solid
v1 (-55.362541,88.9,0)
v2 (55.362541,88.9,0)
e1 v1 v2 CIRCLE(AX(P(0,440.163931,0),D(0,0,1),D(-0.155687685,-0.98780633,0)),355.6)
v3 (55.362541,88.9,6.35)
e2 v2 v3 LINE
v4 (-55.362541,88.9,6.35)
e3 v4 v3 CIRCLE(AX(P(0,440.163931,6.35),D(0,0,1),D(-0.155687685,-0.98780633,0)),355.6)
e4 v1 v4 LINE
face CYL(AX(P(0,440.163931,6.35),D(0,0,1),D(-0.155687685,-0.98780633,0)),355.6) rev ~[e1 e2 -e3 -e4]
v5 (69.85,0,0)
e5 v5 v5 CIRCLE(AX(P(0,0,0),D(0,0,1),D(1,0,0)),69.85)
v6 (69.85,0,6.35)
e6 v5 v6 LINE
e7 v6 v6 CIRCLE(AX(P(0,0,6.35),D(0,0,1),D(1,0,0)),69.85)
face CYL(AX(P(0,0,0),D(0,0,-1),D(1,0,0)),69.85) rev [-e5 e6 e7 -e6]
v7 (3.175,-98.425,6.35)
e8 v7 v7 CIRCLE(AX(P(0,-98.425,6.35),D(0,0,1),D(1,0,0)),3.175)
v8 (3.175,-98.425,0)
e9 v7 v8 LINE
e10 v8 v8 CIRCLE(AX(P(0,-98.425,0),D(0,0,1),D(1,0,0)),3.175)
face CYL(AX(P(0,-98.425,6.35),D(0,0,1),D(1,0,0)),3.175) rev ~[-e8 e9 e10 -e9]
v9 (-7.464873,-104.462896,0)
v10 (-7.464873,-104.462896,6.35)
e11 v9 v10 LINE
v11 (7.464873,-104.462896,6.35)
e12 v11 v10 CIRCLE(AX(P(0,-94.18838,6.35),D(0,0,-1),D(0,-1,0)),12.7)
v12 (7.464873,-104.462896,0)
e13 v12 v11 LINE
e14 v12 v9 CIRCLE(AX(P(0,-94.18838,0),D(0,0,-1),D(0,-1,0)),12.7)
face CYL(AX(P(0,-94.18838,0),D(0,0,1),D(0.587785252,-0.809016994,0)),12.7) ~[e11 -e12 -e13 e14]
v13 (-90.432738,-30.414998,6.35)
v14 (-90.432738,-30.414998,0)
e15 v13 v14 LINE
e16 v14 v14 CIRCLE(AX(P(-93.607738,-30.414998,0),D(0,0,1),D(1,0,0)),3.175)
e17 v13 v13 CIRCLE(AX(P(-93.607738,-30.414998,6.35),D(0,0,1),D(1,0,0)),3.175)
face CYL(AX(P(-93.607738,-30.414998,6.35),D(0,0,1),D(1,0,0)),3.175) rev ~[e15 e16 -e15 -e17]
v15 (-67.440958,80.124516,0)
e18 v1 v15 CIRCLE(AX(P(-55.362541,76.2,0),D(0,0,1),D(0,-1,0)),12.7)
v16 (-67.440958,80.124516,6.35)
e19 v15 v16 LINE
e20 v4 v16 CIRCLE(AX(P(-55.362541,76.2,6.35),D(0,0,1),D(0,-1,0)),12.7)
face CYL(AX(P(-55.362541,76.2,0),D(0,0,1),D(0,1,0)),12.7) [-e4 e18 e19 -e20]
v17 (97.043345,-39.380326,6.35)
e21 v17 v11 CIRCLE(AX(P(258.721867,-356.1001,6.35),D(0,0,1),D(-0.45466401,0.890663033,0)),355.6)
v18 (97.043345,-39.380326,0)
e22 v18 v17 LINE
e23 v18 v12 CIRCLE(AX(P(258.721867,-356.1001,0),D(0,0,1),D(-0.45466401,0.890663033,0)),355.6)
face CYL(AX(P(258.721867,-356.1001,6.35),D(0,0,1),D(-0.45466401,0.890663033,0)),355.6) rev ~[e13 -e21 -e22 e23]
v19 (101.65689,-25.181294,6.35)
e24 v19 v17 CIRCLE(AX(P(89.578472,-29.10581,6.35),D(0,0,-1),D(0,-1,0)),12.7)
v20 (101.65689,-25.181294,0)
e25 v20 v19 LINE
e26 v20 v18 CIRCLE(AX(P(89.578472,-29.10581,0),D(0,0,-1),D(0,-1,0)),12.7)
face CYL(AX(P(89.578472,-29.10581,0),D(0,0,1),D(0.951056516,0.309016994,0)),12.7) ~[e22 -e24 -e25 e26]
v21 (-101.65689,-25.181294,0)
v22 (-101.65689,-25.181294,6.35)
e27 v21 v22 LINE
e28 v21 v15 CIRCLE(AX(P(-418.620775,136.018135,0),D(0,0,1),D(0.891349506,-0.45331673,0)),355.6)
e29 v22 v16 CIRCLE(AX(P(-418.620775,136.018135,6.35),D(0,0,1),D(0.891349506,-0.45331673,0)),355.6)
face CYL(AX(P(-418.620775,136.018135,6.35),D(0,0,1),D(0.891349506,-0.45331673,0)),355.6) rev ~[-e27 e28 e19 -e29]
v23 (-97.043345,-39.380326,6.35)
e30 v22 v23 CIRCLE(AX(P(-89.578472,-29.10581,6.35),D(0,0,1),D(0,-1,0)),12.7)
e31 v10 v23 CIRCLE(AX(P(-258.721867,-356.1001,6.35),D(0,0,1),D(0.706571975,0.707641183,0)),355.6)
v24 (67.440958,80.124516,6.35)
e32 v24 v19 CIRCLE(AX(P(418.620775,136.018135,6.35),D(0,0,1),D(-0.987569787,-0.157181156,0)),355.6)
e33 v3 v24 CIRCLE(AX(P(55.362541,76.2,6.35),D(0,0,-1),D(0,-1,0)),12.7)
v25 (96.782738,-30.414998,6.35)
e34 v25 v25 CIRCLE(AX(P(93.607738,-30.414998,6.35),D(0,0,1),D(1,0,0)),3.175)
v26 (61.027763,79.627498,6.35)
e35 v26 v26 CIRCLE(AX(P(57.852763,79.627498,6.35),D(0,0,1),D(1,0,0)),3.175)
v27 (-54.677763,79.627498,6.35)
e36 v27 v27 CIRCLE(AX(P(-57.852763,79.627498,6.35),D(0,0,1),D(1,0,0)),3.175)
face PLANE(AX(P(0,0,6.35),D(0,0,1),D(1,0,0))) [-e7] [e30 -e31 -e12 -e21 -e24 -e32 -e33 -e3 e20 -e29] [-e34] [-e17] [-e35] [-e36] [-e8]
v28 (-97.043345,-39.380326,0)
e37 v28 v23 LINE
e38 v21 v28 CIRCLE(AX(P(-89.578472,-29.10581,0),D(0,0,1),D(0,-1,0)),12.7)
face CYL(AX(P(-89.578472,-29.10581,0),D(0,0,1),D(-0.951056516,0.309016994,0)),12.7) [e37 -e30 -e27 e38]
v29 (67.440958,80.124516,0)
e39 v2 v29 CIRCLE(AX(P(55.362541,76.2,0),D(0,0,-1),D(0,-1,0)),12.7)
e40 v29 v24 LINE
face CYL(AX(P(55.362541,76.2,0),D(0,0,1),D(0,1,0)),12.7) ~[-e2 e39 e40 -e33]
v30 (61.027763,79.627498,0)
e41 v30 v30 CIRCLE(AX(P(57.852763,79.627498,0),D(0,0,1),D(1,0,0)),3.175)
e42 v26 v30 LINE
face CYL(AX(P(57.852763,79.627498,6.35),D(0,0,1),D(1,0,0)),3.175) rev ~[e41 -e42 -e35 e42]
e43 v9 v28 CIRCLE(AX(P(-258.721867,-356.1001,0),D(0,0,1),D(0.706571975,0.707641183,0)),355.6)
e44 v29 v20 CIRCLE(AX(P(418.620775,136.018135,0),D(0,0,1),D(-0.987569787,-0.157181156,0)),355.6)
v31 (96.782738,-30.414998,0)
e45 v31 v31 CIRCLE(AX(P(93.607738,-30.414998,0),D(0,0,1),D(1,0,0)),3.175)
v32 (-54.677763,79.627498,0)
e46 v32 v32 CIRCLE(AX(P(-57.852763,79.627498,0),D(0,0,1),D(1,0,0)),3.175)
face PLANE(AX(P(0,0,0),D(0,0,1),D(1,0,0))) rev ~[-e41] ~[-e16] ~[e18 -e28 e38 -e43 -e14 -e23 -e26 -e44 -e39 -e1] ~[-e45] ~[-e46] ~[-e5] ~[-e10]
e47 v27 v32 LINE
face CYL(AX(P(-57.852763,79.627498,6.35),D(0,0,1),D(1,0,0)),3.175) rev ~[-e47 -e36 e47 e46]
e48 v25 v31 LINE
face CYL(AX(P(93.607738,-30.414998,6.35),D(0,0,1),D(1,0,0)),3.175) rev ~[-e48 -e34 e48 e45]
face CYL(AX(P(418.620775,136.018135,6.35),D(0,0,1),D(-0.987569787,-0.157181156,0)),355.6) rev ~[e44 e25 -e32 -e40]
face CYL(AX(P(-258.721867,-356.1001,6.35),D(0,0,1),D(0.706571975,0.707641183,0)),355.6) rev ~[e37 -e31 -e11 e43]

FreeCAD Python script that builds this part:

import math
import FreeCAD as App
import Part
import Sketcher
Q = App.Units.Quantity


def edges_at(feature, points):
    """Names of the edges that pass closest to the given points."""
    edges = feature.Shape.Edges
    near = lambda p: min(range(len(edges)), key=lambda i: edges[i].distToShape(Part.Vertex(*p))[0])
    return sorted({f"Edge{near(p) + 1}" for p in points})

doc = App.newDocument("Part")
body = doc.addObject("PartDesign::Body", "Body")

# Sketch on XY plane
sketch1 = body.newObject("Sketcher::SketchObject", "Sketch")
sketch1.AttachmentSupport = (doc.getObject("XY_Plane"), [""])
sketch1.MapMode = "FlatFace"
sketch1.addGeometry([
    Part.LineSegment(App.Vector(65, 89, 0), App.Vector(-65, 89, 0)),  # 0
    Part.LineSegment(App.Vector(-65, 89, 0), App.Vector(-105, -34, 0)),  # 1
    Part.LineSegment(App.Vector(-105, -34, 0), App.Vector(0, -110, 0)),  # 2
    Part.LineSegment(App.Vector(0, -110, 0), App.Vector(105, -34, 0)),  # 3
    Part.LineSegment(App.Vector(105, -34, 0), App.Vector(65, 89, 0)),  # 4
    Part.Circle(App.Vector(0, 0, 0), App.Vector(0, 0, 1), 70),  # 5
], False)
sketch1.addConstraint([
    Sketcher.Constraint("Coincident", 0, 2, 1, 1),
    Sketcher.Constraint("Coincident", 1, 2, 2, 1),
    Sketcher.Constraint("Coincident", 2, 2, 3, 1),
    Sketcher.Constraint("Coincident", 3, 2, 4, 1),
    Sketcher.Constraint("Coincident", 4, 2, 0, 1),
    Sketcher.Constraint("Horizontal", 0),
    Sketcher.Constraint("Coincident", 5, 3, -1, 1),
    Sketcher.Constraint("Symmetric", 1, 2, 3, 2, -2),
    Sketcher.Constraint("PointOnObject", 2, 2, -2),
    Sketcher.Constraint("Equal", 1, 2),
    Sketcher.Constraint("Equal", 3, 4),
    Sketcher.Constraint("Diameter", 5, Q("5.5 in")),
    Sketcher.Constraint("Angle", 1, Q("-108 deg")),
    Sketcher.Constraint("Angle", 2, Q("-36 deg")),
    Sketcher.Constraint("DistanceY", -1, 1, 0, 2, Q("3.5 in")),
    Sketcher.Constraint("DistanceX", 0, 2, 0, 1, 129.179261),
])
pad1 = body.newObject("PartDesign::Pad", "Pad")
pad1.Profile = sketch1
pad1.Length = Q("0.25 in")
doc.recompute()

fillet = body.newObject("PartDesign::Fillet", "Fillet")
fillet.Base = (pad1, edges_at(pad1, [
    (-64.59, 88.9, 3.175),
    (-104.508, -33.957, 3.175),
    (0, -109.886, 3.175),
    (104.508, -33.957, 3.175),
    (64.59, 88.9, 3.175),
]))
fillet.Radius = Q("0.5 in")

# Sketch on XY plane
sketch2 = body.newObject("Sketcher::SketchObject", "Sketch001")
sketch2.AttachmentSupport = (doc.getObject("XY_Plane"), [""])
sketch2.MapMode = "FlatFace"
sketch2.AttachmentOffset = App.Placement(App.Vector(0, 0, 0.25 * 25.4), App.Rotation())
sketch2.addGeometry([
    Part.Circle(App.Vector(0, -98.4, 0), App.Vector(0, 0, 1), 3.2),  # 0
    Part.Circle(App.Vector(93.6, -30.4, 0), App.Vector(0, 0, 1), 3.2),  # 1
    Part.Circle(App.Vector(57.9, 79.6, 0), App.Vector(0, 0, 1), 3.2),  # 2
    Part.Circle(App.Vector(-57.9, 79.6, 0), App.Vector(0, 0, 1), 3.2),  # 3
    Part.Circle(App.Vector(-93.6, -30.4, 0), App.Vector(0, 0, 1), 3.2),  # 4
], False)
sketch2.addConstraint([
    Sketcher.Constraint("Equal", 0, 1),
    Sketcher.Constraint("Equal", 1, 2),
    Sketcher.Constraint("Equal", 2, 3),
    Sketcher.Constraint("Equal", 3, 4),
    Sketcher.Constraint("Symmetric", 2, 3, 3, 3, -2),
    Sketcher.Constraint("Symmetric", 1, 3, 4, 3, -2),
    Sketcher.Constraint("PointOnObject", 0, 3, -2),
    Sketcher.Constraint("Diameter", 0, Q("0.25 in")),
    Sketcher.Constraint("DistanceY", 0, 3, -1, 1, Q("3.875 in")),
    Sketcher.Constraint("DistanceX", 3, 3, 1, 3, 151.460501),
    Sketcher.Constraint("DistanceX", -1, 1, 1, 3, 93.607738),
    Sketcher.Constraint("DistanceY", 1, 3, -1, 1, 30.414998),
    Sketcher.Constraint("DistanceY", -1, 1, 2, 3, 79.627498),
])
pocket1 = body.newObject("PartDesign::Pocket", "Pocket")
pocket1.Profile = sketch2
pocket1.Type = "ThroughAll"

# Sketch on XY plane
sketch3 = body.newObject("Sketcher::SketchObject", "Sketch002")
sketch3.AttachmentSupport = (doc.getObject("XY_Plane"), [""])
sketch3.MapMode = "FlatFace"
sketch3.AttachmentOffset = App.Placement(App.Vector(0, 0, 0.25 * 25.4), App.Rotation())
sketch3.addGeometry([
    Part.LineSegment(App.Vector(55, 89, 0), App.Vector(-55, 89, 0)),  # 0
    Part.ArcOfCircle(Part.Circle(App.Vector(0, 440, 0), App.Vector(0, 0, 1), 356), math.radians(-98.96), math.radians(-81.04)),  # 1
    Part.ArcOfCircle(Part.Circle(App.Vector(-419, 136, 0), App.Vector(0, 0, 1), 356), math.radians(-26.96), math.radians(-9.04)),  # 2
    Part.LineSegment(App.Vector(-67, 80, 0), App.Vector(-102, -25, 0)),  # 3
    Part.ArcOfCircle(Part.Circle(App.Vector(-259, -356, 0), App.Vector(0, 0, 1), 356), math.radians(45.04), math.radians(62.96)),  # 4
    Part.LineSegment(App.Vector(-97, -39, 0), App.Vector(-7, -104, 0)),  # 5
    Part.ArcOfCircle(Part.Circle(App.Vector(259, -356, 0), App.Vector(0, 0, 1), 356), math.radians(117.04), math.radians(134.96)),  # 6
    Part.LineSegment(App.Vector(7, -104, 0), App.Vector(97, -39, 0)),  # 7
    Part.ArcOfCircle(Part.Circle(App.Vector(419, 136, 0), App.Vector(0, 0, 1), 356), math.radians(-170.96), math.radians(-153.04)),  # 8
    Part.LineSegment(App.Vector(102, -25, 0), App.Vector(67, 80, 0)),  # 9
], False)
sketch3.addConstraint([
    Sketcher.Constraint("Coincident", 0, 1, 1, 2),
    Sketcher.Constraint("Coincident", 1, 1, 0, 2),
    Sketcher.Constraint("Coincident", 2, 1, 3, 2),
    Sketcher.Constraint("Coincident", 3, 1, 2, 2),
    Sketcher.Constraint("Coincident", 4, 1, 5, 2),
    Sketcher.Constraint("Coincident", 5, 1, 4, 2),
    Sketcher.Constraint("Coincident", 6, 1, 7, 2),
    Sketcher.Constraint("Coincident", 7, 1, 6, 2),
    Sketcher.Constraint("Coincident", 8, 1, 9, 2),
    Sketcher.Constraint("Coincident", 9, 1, 8, 2),
    Sketcher.Constraint("Horizontal", 0),
    Sketcher.Constraint("Equal", 1, 2),
    Sketcher.Constraint("Equal", 2, 4),
    Sketcher.Constraint("Equal", 4, 6),
    Sketcher.Constraint("Equal", 6, 8),
    Sketcher.Constraint("Symmetric", 4, 3, 6, 3, -2),
    Sketcher.Constraint("Symmetric", 2, 3, 8, 3, -2),
    Sketcher.Constraint("PointOnObject", 1, 3, -2),
    Sketcher.Constraint("Horizontal", 5, 1, 6, 1),
    Sketcher.Constraint("Horizontal", 4, 1, 7, 1),
    Sketcher.Constraint("Horizontal", 3, 1, 8, 1),
    Sketcher.Constraint("Horizontal", 2, 1, 9, 1),
    Sketcher.Constraint("Equal", 3, 5),
    Sketcher.Constraint("Radius", 1, Q("14 in")),
    Sketcher.Constraint("Angle", 3, Q("-108 deg")),
    Sketcher.Constraint("Angle", 5, Q("-36 deg")),
    Sketcher.Constraint("DistanceY", -1, 1, 0, 1, Q("3.5 in")),
    Sketcher.Constraint("DistanceX", 0, 2, 0, 1, 110.725081),
    Sketcher.Constraint("DistanceY", 4, 3, -1, 1, 356.1001),
    Sketcher.Constraint("DistanceX", 3, 1, 0, 1, 122.803499),
    Sketcher.Constraint("DistanceY", 7, 1, 9, 1, 79.281601),
    Sketcher.Constraint("Distance", 3, 110.725081),
    Sketcher.Constraint("DistanceX", 2, 3, 6, 3, 677.342642),
])
pocket2 = body.newObject("PartDesign::Pocket", "Pocket001")
pocket2.Profile = sketch3
pocket2.Type = "ThroughAll"

doc.recompute()
